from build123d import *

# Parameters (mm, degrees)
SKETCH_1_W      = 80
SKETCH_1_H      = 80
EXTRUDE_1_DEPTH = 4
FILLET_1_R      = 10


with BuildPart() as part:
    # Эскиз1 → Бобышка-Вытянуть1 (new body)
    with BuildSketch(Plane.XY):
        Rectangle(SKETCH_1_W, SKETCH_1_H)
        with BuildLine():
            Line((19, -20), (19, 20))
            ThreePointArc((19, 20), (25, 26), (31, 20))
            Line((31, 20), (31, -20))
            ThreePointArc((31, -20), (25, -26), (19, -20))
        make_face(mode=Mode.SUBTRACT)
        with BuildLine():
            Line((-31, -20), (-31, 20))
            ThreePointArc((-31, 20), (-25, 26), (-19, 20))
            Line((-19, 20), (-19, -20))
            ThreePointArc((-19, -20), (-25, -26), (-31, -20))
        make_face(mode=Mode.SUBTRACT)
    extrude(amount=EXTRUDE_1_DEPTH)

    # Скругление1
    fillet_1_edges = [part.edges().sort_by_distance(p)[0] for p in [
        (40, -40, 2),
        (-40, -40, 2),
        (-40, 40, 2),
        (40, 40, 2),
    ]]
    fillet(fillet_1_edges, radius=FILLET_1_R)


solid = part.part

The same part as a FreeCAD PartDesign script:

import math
import FreeCAD as App
import Part
import Sketcher

V = App.Vector


def edges_at(feature, points):
    """Names of the edges that pass closest to the given points."""
    edges = feature.Shape.Edges
    near = lambda p: min(range(len(edges)), key=lambda i: edges[i].distToShape(Part.Vertex(*p))[0])
    return sorted({f"Edge{near(p) + 1}" for p in points})

doc = App.newDocument("Part")
body = doc.addObject("PartDesign::Body", "Body")

# Sketch on XY plane
sketch1 = doc.addObject("Sketcher::SketchObject", "Sketch")
body.addObject(sketch1)
sketch1.AttachmentSupport = (doc.XY_Plane, [""])
sketch1.MapMode = "FlatFace"
sketch1.addGeometry([
    Part.LineSegment(V(-40, 40, 0), V(-40, -40, 0)),  # 0
    Part.LineSegment(V(-40, -40, 0), V(40, -40, 0)),  # 1
    Part.LineSegment(V(40, -40, 0), V(40, 40, 0)),  # 2
    Part.LineSegment(V(40, 40, 0), V(-40, 40, 0)),  # 3
    Part.ArcOfCircle(Part.Circle(V(-25, -20, 0), V(0, 0, 1), 6), math.radians(180), math.radians(360)),  # 4
    Part.LineSegment(V(-31, -20, 0), V(-31, 20, 0)),  # 5
    Part.ArcOfCircle(Part.Circle(V(-25, 20, 0), V(0, 0, 1), 6), math.radians(0), math.radians(180)),  # 6
    Part.LineSegment(V(-19, 20, 0), V(-19, -20, 0)),  # 7
    Part.ArcOfCircle(Part.Circle(V(25, -20, 0), V(0, 0, 1), 6), math.radians(180), math.radians(360)),  # 8
    Part.LineSegment(V(19, -20, 0), V(19, 20, 0)),  # 9
    Part.ArcOfCircle(Part.Circle(V(25, 20, 0), V(0, 0, 1), 6), math.radians(0), math.radians(180)),  # 10
    Part.LineSegment(V(31, 20, 0), V(31, -20, 0)),  # 11
], False)
sketch1.addConstraint([
    Sketcher.Constraint("Coincident", 0, 2, 1, 1),
    Sketcher.Constraint("Coincident", 1, 2, 2, 1),
    Sketcher.Constraint("Coincident", 2, 2, 3, 1),
    Sketcher.Constraint("Coincident", 3, 2, 0, 1),
    Sketcher.Constraint("Tangent", 4, 1, 5, 1),
    Sketcher.Constraint("Tangent", 5, 2, 6, 2),
    Sketcher.Constraint("Tangent", 6, 1, 7, 1),
    Sketcher.Constraint("Tangent", 7, 2, 4, 2),
    Sketcher.Constraint("Tangent", 8, 1, 9, 1),
    Sketcher.Constraint("Tangent", 9, 2, 10, 2),
    Sketcher.Constraint("Tangent", 10, 1, 11, 1),
    Sketcher.Constraint("Tangent", 11, 2, 8, 2),
    Sketcher.Constraint("Vertical", 0),
    Sketcher.Constraint("Horizontal", 1),
    Sketcher.Constraint("Vertical", 2),
    Sketcher.Constraint("Horizontal", 3),
    Sketcher.Constraint("Vertical", 5),
    Sketcher.Constraint("Vertical", 7),
    Sketcher.Constraint("Vertical", 9),
    Sketcher.Constraint("Vertical", 11),
    Sketcher.Constraint("Equal", 6, 8),
    Sketcher.Constraint("Symmetric", 6, 3, 8, 3, -1, 1),
    Sketcher.Constraint("Symmetric", 0, 2, 2, 2, -1, 1),
    Sketcher.Constraint("Horizontal", 4, 3, 8, 3),
    Sketcher.Constraint("Horizontal", 6, 3, 10, 3),
    Sketcher.Constraint("Equal", 3, 0),
    Sketcher.Constraint("Radius", 4, 6.0),
    Sketcher.Constraint("DistanceX", 1, 1, 1, 2, 80.0),
    Sketcher.Constraint("DistanceY", 5, 1, 5, 2, 40.0),
    Sketcher.Constraint("DistanceX", 4, 3, -1, 1, 25.0),
])
pad1 = doc.addObject("PartDesign::Pad", "Pad")
body.addObject(pad1)
pad1.Profile = sketch1
pad1.Length = 4
doc.recompute()

fillet = doc.addObject("PartDesign::Fillet", "Fillet")
body.addObject(fillet)
fillet.Base = (pad1, edges_at(pad1, [
    (40, -40, 2),
    (-40, -40, 2),
    (-40, 40, 2),
    (40, 40, 2),
]))
fillet.Radius = 10

doc.recompute()
